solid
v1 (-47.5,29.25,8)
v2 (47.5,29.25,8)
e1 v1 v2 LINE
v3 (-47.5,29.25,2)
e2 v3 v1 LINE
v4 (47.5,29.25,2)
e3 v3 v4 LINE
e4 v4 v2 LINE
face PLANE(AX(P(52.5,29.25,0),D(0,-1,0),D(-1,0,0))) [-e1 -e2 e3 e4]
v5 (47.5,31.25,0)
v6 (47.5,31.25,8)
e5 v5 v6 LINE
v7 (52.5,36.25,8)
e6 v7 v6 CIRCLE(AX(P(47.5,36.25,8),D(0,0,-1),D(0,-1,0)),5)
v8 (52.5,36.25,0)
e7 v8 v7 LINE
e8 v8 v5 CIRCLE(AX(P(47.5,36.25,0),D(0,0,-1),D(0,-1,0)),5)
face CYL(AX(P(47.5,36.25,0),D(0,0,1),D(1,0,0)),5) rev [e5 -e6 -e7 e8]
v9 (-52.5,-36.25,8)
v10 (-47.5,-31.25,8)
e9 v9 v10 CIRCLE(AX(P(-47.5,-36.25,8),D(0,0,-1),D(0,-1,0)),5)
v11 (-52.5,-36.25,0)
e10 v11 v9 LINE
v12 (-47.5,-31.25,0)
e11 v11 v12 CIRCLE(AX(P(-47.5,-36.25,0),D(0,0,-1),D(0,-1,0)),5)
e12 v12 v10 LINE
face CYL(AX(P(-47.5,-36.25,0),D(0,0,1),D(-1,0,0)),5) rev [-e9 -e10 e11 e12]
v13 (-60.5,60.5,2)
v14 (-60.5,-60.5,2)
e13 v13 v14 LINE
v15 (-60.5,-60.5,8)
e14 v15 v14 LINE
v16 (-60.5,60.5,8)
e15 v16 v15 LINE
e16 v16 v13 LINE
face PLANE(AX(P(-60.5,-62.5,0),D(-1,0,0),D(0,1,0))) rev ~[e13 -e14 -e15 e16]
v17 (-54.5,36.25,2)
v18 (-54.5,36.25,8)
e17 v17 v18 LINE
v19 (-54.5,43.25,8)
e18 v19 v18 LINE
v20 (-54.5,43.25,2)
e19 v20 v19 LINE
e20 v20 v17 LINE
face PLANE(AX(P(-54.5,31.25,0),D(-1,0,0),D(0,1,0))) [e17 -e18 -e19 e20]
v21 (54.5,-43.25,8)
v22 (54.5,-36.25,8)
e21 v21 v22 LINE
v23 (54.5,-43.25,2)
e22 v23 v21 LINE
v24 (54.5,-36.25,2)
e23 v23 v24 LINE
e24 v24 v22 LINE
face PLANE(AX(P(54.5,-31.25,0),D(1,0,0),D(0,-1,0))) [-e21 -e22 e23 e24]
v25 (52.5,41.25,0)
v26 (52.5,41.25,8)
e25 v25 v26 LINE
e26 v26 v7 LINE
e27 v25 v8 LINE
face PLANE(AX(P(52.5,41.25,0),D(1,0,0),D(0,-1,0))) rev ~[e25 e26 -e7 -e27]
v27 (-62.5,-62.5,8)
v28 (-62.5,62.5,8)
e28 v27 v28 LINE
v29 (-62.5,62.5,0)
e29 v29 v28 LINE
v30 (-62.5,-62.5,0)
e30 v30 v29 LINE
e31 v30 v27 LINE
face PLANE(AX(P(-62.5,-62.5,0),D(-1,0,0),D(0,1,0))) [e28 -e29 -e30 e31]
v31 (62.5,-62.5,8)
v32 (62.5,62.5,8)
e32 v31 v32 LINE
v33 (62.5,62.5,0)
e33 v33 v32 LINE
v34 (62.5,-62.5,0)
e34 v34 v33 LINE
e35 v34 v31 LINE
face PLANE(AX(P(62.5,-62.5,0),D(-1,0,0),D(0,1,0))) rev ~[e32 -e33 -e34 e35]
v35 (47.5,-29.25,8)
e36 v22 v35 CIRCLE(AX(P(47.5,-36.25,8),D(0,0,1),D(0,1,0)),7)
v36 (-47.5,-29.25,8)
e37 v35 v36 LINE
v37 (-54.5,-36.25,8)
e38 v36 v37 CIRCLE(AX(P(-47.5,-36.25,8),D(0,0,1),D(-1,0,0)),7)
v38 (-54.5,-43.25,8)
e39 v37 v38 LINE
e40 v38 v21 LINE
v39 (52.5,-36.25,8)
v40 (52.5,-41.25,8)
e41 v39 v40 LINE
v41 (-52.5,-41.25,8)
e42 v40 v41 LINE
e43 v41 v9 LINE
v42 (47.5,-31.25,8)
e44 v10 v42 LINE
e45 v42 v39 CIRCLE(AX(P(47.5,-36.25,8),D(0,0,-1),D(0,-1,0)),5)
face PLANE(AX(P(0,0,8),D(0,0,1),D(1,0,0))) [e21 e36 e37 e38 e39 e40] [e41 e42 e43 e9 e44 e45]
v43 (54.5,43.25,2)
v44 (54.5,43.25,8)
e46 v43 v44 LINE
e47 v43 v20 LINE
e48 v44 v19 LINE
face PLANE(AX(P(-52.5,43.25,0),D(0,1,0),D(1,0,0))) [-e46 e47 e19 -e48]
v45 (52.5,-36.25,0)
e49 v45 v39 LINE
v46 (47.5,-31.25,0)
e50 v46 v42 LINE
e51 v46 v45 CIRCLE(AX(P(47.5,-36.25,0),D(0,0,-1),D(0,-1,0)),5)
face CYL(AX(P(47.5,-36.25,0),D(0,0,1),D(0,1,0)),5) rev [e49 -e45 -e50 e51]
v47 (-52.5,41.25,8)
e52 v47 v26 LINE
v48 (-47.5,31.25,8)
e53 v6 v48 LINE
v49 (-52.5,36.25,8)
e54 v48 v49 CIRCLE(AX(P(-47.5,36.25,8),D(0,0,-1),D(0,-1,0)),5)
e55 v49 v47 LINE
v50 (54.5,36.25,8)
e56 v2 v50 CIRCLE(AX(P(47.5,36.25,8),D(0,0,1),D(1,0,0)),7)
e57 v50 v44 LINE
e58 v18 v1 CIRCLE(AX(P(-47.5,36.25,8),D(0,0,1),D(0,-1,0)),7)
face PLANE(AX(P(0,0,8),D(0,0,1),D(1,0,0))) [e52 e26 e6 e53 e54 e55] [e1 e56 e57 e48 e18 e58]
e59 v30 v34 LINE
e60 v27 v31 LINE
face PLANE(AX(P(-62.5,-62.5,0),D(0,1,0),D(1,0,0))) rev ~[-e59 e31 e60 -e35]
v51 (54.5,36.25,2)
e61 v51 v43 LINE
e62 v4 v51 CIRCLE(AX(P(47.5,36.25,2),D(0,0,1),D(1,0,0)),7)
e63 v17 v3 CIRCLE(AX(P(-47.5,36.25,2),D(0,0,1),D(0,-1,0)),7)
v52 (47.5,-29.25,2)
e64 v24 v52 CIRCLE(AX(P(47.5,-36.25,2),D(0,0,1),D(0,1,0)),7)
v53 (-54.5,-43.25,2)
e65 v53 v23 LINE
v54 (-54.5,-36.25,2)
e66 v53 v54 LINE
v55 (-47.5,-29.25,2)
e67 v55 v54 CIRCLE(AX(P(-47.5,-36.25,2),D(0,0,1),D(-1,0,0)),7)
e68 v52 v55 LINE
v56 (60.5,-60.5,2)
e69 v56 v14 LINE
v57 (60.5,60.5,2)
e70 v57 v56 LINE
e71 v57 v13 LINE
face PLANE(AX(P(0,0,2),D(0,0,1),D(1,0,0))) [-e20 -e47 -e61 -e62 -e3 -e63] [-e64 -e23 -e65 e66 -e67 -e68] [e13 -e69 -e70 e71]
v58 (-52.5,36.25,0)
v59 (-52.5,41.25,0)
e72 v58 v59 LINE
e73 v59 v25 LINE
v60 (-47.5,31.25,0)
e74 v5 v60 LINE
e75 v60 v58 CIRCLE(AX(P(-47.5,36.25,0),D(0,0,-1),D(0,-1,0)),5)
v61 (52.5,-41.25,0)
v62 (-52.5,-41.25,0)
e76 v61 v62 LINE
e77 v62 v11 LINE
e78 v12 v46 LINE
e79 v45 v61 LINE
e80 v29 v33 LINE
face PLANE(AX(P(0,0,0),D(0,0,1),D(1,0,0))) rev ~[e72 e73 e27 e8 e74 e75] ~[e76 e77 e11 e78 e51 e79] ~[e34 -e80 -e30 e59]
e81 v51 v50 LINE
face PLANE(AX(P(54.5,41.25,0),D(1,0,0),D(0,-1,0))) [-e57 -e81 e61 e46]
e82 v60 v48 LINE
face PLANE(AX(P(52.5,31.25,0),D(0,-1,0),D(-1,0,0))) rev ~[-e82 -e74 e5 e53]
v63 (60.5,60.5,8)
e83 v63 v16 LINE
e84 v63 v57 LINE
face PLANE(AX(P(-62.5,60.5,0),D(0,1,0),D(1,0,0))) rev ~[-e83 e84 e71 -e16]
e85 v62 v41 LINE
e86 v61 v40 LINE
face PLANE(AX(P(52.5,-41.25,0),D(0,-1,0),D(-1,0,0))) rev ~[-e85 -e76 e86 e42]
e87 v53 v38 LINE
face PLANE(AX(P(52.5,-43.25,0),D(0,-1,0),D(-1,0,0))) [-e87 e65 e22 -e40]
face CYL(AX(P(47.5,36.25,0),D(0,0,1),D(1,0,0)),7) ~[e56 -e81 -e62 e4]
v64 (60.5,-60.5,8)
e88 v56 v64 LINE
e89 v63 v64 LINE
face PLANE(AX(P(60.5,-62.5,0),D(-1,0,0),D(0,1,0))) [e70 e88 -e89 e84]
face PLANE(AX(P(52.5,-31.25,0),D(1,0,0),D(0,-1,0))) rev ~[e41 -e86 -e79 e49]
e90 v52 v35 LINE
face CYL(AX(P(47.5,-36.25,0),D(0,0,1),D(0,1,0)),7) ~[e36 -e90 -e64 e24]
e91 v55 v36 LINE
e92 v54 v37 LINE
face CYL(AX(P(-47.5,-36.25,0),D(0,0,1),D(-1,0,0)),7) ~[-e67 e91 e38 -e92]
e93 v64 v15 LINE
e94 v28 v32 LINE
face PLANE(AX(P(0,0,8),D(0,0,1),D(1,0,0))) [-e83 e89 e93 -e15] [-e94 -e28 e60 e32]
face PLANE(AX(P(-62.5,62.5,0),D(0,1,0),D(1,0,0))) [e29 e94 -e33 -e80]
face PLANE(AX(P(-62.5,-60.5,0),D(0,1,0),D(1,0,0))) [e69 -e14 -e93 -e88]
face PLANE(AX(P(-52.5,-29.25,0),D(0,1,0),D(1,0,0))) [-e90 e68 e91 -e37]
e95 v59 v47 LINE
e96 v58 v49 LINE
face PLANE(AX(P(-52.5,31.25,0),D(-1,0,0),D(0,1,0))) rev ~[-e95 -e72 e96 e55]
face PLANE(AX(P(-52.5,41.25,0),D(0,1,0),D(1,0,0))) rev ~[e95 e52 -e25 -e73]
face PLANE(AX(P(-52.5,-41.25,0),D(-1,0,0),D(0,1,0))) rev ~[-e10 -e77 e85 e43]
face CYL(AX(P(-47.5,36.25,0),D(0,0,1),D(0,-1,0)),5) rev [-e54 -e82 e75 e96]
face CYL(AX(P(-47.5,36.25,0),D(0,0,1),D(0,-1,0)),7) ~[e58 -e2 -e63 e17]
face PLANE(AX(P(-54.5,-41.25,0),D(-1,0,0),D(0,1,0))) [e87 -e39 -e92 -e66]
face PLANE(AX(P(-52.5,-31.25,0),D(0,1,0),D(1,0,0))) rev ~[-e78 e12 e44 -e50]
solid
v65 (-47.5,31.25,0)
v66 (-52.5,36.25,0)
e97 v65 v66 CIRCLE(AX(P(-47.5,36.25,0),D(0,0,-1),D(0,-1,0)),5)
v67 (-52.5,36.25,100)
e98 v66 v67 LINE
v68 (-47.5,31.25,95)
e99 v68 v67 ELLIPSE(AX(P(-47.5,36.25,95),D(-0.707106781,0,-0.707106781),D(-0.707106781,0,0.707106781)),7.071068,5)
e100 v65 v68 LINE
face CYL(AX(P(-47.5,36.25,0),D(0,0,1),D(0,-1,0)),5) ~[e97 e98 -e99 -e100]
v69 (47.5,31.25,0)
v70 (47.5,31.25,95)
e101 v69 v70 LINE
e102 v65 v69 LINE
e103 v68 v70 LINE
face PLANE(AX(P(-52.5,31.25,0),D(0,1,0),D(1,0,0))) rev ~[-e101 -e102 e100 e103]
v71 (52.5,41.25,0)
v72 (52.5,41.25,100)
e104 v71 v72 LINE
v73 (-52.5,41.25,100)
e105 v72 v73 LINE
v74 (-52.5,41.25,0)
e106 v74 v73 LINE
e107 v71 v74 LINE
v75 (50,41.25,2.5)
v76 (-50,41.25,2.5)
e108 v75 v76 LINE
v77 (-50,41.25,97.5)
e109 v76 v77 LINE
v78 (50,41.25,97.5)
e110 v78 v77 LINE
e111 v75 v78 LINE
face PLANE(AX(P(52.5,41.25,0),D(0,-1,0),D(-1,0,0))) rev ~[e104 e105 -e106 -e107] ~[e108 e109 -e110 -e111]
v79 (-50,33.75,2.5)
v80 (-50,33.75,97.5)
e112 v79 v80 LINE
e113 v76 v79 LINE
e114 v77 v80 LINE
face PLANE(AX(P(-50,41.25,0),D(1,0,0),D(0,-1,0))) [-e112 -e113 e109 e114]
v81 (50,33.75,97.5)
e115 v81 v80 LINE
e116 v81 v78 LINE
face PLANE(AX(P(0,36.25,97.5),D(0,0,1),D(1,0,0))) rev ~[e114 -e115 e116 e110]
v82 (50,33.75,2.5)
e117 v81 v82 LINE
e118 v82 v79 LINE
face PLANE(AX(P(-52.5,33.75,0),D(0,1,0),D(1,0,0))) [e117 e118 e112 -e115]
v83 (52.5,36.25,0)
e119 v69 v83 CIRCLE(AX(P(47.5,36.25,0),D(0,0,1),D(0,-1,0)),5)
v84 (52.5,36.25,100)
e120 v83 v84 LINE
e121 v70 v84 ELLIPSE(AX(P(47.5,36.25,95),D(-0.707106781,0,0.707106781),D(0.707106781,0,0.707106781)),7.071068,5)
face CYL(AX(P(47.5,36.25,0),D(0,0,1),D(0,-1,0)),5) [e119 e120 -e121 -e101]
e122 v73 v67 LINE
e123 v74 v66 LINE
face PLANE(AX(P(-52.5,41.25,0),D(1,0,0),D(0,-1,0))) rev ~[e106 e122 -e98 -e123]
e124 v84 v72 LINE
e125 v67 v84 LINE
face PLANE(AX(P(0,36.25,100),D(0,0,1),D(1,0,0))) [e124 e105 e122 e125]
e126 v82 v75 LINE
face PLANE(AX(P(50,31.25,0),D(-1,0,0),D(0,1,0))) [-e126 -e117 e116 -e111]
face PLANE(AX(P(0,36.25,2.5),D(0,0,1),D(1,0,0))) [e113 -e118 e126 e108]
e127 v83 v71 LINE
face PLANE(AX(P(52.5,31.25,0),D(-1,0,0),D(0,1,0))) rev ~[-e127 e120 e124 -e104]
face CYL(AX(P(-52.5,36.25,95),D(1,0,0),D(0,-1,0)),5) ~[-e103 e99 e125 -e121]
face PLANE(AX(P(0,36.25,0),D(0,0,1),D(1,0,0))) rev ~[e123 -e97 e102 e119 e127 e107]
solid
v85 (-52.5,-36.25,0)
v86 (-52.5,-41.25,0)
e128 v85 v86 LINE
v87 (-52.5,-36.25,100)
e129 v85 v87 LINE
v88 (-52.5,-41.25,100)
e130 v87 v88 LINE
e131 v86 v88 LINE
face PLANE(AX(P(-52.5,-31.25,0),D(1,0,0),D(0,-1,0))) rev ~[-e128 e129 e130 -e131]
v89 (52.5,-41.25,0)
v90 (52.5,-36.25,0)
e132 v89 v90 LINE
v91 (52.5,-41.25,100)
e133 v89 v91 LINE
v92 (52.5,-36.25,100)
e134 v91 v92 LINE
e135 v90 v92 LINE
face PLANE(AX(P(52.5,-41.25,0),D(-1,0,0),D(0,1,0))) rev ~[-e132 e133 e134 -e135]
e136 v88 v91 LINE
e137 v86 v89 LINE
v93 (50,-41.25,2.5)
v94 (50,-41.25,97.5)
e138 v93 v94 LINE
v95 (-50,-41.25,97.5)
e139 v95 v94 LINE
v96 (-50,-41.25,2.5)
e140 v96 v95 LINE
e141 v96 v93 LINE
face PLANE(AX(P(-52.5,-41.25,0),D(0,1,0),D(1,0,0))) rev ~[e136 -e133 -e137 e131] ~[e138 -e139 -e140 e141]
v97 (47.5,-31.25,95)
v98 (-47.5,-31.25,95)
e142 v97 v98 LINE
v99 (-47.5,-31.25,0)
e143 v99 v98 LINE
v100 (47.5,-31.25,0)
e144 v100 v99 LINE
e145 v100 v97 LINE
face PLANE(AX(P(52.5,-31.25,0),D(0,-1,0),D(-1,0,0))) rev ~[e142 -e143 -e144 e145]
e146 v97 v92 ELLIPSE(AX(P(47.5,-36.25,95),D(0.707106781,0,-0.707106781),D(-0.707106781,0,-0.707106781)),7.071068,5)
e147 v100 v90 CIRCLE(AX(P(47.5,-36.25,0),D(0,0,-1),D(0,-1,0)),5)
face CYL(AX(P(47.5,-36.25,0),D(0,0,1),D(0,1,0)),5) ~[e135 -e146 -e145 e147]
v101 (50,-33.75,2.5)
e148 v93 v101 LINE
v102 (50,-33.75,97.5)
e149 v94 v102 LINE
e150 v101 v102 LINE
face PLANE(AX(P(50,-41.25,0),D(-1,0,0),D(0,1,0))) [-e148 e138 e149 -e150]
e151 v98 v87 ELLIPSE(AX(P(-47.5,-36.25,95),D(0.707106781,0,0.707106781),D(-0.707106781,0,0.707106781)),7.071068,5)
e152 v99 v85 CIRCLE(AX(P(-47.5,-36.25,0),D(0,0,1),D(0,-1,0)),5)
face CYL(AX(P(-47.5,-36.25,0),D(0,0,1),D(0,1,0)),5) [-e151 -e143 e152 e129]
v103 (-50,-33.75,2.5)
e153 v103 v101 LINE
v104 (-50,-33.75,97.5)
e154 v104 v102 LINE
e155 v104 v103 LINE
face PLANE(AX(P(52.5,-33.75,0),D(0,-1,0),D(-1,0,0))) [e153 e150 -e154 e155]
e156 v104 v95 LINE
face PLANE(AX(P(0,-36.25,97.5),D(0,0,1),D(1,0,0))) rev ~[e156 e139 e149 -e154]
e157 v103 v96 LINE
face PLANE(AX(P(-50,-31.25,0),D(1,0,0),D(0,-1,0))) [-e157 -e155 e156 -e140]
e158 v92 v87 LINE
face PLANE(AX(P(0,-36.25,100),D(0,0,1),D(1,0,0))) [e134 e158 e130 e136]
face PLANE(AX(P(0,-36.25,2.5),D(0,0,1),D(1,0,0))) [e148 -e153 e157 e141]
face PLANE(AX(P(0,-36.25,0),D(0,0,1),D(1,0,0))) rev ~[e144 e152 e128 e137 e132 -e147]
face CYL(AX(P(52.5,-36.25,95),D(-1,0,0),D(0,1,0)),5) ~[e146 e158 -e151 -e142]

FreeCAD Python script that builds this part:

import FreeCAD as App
import Part
import Sketcher
from FreeCAD import Vector
Q = App.Units.Quantity


def edges_at(feature, points):
    """Names of the edges that pass closest to the given points."""
    edges = feature.Shape.Edges
    near = lambda p: min(range(len(edges)), key=lambda i: edges[i].distToShape(Part.Vertex(*p))[0])
    return sorted({f"Edge{near(p) + 1}" for p in points})


def faces_at(feature, points):
    """Names of the faces that lie closest to the given points."""
    faces = feature.Shape.Faces
    near = lambda p: min(range(len(faces)), key=lambda i: faces[i].distToShape(Part.Vertex(*p))[0])
    return sorted({f"Face{near(p) + 1}" for p in points})


def add_polygon(sketch, points):
    """Adds a closed chain of lines whose ends are joined by coincident constraints."""
    first, n = sketch.GeometryCount, len(points)
    for a, b in zip(points, points[1:] + points[:1]):
        sketch.addGeometry(Part.LineSegment(App.Vector(*a, 0), App.Vector(*b, 0)), False)
    for i in range(n):
        sketch.addConstraint(Sketcher.Constraint("Coincident", first + i, 2, first + (i + 1) % n, 1))

doc = App.newDocument("Part")
body = doc.addObject("PartDesign::Body", "Body")

# Sketch on XY plane
sketch1 = body.newObject("Sketcher::SketchObject", "Sketch")
sketch1.AttachmentSupport = (doc.getObject("XY_Plane"), [""])
sketch1.MapMode = "FlatFace"
add_polygon(sketch1, [(-62, 62), (-62, -62), (62, -62), (62, 62)])  # lines 0-3
add_polygon(sketch1, [(-52, -41), (-52, -31), (52, -31), (52, -41)])  # lines 4-7
add_polygon(sketch1, [(52, 41), (52, 31), (-52, 31), (-52, 41)])  # lines 8-11
sketch1.addConstraint([
    Sketcher.Constraint("Vertical", 0),
    Sketcher.Constraint("Horizontal", 1),
    Sketcher.Constraint("Vertical", 2),
    Sketcher.Constraint("Horizontal", 3),
    Sketcher.Constraint("Vertical", 4),
    Sketcher.Constraint("Horizontal", 5),
    Sketcher.Constraint("Vertical", 6),
    Sketcher.Constraint("Horizontal", 7),
    Sketcher.Constraint("Vertical", 8),
    Sketcher.Constraint("Horizontal", 9),
    Sketcher.Constraint("Vertical", 10),
    Sketcher.Constraint("Horizontal", 11),
    Sketcher.Constraint("Symmetric", 0, 2, 2, 2, -1, 1),
    Sketcher.Constraint("Symmetric", 4, 2, 8, 2, -1, 1),
    Sketcher.Constraint("Symmetric", 6, 2, 10, 2, -1, 1),
    Sketcher.Constraint("Vertical", 6, 2, 8, 2),
    Sketcher.Constraint("Equal", 3, 0),
    Sketcher.Constraint("DistanceX", 1, 1, 1, 2, Q("125 mm")),
    Sketcher.Constraint("DistanceX", 5, 1, 5, 2, Q("105 mm")),
    Sketcher.Constraint("DistanceY", 4, 1, 4, 2, Q("10 mm")),
    Sketcher.Constraint("DistanceY", 5, 2, 8, 2, Q("62.5 mm")),
])
pad1 = body.newObject("PartDesign::Pad", "Pad")
pad1.Profile = sketch1
pad1.Length = 8
doc.recompute()

fillet = body.newObject("PartDesign::Fillet", "Fillet")
fillet.Base = (pad1, edges_at(pad1, [
    (52.5, 31.25, 4),
    (-52.5, 31.25, 4),
    (-52.5, -31.25, 4),
    (52.5, -31.25, 4),
]))
fillet.Radius = 5
doc.recompute()

thickness = body.newObject("PartDesign::Thickness", "Thickness")
thickness.Base = (fillet, faces_at(fillet, [(0, 0, 8)]))
thickness.Value = 2
thickness.Reversed = True
thickness.Join = "Intersection"
body2 = doc.addObject("PartDesign::Body", "Body001")

# Sketch on XY plane
sketch2 = body2.newObject("Sketcher::SketchObject", "Sketch001")
sketch2.AttachmentSupport = (doc.getObject("XY_Plane001"), [""])
sketch2.MapMode = "FlatFace"
add_polygon(sketch2, [(52, -31), (-52, -31), (-52, -41), (52, -41)])  # lines 0-3
sketch2.addConstraint([
    Sketcher.Constraint("Horizontal", 0),
    Sketcher.Constraint("Vertical", 1),
    Sketcher.Constraint("Horizontal", 2),
    Sketcher.Constraint("Vertical", 3),
    Sketcher.Constraint("DistanceX", 0, 2, 0, 1, Q("105 mm")),
    Sketcher.Constraint("DistanceY", 1, 2, 1, 1, Q("10 mm")),
    Sketcher.Constraint("DistanceX", 0, 2, -1, 1, Q("52.5 mm")),
    Sketcher.Constraint("DistanceY", 0, 2, -1, 1, Q("31.25 mm")),
])
pad2 = body2.newObject("PartDesign::Pad", "Pad001")
pad2.Profile = sketch2
pad2.Length = 100
doc.recompute()

thickness2 = body2.newObject("PartDesign::Thickness", "Thickness001")
thickness2.Base = (pad2, faces_at(pad2, [(0, -41.25, 50)]))
thickness2.Value = 2.5
thickness2.Reversed = True
thickness2.Join = "Arc"
doc.recompute()

fillet2 = body2.newObject("PartDesign::Fillet", "Fillet001")
fillet2.Base = (thickness2, edges_at(thickness2, [(-52.5, -31.25, 50), (0, -31.25, 100), (52.5, -31.25, 50)]))
fillet2.Radius = 5
body3 = doc.addObject("PartDesign::Body", "Body002")

# Sketch on XY plane
sketch3 = body3.newObject("Sketcher::SketchObject", "Sketch002")
sketch3.AttachmentSupport = (doc.getObject("XY_Plane002"), [""])
sketch3.MapMode = "FlatFace"
add_polygon(sketch3, [(-52, 31), (52, 31), (52, 41), (-52, 41)])  # lines 0-3
sketch3.addConstraint([
    Sketcher.Constraint("Horizontal", 0),
    Sketcher.Constraint("Vertical", 1),
    Sketcher.Constraint("Horizontal", 2),
    Sketcher.Constraint("Vertical", 3),
    Sketcher.Constraint("DistanceX", 0, 1, 0, 2, Q("105 mm")),
    Sketcher.Constraint("DistanceY", 1, 1, 1, 2, Q("10 mm")),
    Sketcher.Constraint("DistanceX", -1, 1, 0, 2, Q("52.5 mm")),
    Sketcher.Constraint("DistanceY", -1, 1, 0, 2, Q("31.25 mm")),
])
pad3 = body3.newObject("PartDesign::Pad", "Pad002")
pad3.Profile = sketch3
pad3.Length = 100
doc.recompute()

thickness3 = body3.newObject("PartDesign::Thickness", "Thickness002")
thickness3.Base = (pad3, faces_at(pad3, [(0, 41.25, 50)]))
thickness3.Value = 2.5
thickness3.Reversed = True
thickness3.Join = "Arc"
doc.recompute()

fillet3 = body3.newObject("PartDesign::Fillet", "Fillet002")
fillet3.Base = (thickness3, edges_at(thickness3, [(-52.5, 31.25, 50), (0, 31.25, 100), (52.5, 31.25, 50)]))
fillet3.Radius = 5

doc.recompute()
